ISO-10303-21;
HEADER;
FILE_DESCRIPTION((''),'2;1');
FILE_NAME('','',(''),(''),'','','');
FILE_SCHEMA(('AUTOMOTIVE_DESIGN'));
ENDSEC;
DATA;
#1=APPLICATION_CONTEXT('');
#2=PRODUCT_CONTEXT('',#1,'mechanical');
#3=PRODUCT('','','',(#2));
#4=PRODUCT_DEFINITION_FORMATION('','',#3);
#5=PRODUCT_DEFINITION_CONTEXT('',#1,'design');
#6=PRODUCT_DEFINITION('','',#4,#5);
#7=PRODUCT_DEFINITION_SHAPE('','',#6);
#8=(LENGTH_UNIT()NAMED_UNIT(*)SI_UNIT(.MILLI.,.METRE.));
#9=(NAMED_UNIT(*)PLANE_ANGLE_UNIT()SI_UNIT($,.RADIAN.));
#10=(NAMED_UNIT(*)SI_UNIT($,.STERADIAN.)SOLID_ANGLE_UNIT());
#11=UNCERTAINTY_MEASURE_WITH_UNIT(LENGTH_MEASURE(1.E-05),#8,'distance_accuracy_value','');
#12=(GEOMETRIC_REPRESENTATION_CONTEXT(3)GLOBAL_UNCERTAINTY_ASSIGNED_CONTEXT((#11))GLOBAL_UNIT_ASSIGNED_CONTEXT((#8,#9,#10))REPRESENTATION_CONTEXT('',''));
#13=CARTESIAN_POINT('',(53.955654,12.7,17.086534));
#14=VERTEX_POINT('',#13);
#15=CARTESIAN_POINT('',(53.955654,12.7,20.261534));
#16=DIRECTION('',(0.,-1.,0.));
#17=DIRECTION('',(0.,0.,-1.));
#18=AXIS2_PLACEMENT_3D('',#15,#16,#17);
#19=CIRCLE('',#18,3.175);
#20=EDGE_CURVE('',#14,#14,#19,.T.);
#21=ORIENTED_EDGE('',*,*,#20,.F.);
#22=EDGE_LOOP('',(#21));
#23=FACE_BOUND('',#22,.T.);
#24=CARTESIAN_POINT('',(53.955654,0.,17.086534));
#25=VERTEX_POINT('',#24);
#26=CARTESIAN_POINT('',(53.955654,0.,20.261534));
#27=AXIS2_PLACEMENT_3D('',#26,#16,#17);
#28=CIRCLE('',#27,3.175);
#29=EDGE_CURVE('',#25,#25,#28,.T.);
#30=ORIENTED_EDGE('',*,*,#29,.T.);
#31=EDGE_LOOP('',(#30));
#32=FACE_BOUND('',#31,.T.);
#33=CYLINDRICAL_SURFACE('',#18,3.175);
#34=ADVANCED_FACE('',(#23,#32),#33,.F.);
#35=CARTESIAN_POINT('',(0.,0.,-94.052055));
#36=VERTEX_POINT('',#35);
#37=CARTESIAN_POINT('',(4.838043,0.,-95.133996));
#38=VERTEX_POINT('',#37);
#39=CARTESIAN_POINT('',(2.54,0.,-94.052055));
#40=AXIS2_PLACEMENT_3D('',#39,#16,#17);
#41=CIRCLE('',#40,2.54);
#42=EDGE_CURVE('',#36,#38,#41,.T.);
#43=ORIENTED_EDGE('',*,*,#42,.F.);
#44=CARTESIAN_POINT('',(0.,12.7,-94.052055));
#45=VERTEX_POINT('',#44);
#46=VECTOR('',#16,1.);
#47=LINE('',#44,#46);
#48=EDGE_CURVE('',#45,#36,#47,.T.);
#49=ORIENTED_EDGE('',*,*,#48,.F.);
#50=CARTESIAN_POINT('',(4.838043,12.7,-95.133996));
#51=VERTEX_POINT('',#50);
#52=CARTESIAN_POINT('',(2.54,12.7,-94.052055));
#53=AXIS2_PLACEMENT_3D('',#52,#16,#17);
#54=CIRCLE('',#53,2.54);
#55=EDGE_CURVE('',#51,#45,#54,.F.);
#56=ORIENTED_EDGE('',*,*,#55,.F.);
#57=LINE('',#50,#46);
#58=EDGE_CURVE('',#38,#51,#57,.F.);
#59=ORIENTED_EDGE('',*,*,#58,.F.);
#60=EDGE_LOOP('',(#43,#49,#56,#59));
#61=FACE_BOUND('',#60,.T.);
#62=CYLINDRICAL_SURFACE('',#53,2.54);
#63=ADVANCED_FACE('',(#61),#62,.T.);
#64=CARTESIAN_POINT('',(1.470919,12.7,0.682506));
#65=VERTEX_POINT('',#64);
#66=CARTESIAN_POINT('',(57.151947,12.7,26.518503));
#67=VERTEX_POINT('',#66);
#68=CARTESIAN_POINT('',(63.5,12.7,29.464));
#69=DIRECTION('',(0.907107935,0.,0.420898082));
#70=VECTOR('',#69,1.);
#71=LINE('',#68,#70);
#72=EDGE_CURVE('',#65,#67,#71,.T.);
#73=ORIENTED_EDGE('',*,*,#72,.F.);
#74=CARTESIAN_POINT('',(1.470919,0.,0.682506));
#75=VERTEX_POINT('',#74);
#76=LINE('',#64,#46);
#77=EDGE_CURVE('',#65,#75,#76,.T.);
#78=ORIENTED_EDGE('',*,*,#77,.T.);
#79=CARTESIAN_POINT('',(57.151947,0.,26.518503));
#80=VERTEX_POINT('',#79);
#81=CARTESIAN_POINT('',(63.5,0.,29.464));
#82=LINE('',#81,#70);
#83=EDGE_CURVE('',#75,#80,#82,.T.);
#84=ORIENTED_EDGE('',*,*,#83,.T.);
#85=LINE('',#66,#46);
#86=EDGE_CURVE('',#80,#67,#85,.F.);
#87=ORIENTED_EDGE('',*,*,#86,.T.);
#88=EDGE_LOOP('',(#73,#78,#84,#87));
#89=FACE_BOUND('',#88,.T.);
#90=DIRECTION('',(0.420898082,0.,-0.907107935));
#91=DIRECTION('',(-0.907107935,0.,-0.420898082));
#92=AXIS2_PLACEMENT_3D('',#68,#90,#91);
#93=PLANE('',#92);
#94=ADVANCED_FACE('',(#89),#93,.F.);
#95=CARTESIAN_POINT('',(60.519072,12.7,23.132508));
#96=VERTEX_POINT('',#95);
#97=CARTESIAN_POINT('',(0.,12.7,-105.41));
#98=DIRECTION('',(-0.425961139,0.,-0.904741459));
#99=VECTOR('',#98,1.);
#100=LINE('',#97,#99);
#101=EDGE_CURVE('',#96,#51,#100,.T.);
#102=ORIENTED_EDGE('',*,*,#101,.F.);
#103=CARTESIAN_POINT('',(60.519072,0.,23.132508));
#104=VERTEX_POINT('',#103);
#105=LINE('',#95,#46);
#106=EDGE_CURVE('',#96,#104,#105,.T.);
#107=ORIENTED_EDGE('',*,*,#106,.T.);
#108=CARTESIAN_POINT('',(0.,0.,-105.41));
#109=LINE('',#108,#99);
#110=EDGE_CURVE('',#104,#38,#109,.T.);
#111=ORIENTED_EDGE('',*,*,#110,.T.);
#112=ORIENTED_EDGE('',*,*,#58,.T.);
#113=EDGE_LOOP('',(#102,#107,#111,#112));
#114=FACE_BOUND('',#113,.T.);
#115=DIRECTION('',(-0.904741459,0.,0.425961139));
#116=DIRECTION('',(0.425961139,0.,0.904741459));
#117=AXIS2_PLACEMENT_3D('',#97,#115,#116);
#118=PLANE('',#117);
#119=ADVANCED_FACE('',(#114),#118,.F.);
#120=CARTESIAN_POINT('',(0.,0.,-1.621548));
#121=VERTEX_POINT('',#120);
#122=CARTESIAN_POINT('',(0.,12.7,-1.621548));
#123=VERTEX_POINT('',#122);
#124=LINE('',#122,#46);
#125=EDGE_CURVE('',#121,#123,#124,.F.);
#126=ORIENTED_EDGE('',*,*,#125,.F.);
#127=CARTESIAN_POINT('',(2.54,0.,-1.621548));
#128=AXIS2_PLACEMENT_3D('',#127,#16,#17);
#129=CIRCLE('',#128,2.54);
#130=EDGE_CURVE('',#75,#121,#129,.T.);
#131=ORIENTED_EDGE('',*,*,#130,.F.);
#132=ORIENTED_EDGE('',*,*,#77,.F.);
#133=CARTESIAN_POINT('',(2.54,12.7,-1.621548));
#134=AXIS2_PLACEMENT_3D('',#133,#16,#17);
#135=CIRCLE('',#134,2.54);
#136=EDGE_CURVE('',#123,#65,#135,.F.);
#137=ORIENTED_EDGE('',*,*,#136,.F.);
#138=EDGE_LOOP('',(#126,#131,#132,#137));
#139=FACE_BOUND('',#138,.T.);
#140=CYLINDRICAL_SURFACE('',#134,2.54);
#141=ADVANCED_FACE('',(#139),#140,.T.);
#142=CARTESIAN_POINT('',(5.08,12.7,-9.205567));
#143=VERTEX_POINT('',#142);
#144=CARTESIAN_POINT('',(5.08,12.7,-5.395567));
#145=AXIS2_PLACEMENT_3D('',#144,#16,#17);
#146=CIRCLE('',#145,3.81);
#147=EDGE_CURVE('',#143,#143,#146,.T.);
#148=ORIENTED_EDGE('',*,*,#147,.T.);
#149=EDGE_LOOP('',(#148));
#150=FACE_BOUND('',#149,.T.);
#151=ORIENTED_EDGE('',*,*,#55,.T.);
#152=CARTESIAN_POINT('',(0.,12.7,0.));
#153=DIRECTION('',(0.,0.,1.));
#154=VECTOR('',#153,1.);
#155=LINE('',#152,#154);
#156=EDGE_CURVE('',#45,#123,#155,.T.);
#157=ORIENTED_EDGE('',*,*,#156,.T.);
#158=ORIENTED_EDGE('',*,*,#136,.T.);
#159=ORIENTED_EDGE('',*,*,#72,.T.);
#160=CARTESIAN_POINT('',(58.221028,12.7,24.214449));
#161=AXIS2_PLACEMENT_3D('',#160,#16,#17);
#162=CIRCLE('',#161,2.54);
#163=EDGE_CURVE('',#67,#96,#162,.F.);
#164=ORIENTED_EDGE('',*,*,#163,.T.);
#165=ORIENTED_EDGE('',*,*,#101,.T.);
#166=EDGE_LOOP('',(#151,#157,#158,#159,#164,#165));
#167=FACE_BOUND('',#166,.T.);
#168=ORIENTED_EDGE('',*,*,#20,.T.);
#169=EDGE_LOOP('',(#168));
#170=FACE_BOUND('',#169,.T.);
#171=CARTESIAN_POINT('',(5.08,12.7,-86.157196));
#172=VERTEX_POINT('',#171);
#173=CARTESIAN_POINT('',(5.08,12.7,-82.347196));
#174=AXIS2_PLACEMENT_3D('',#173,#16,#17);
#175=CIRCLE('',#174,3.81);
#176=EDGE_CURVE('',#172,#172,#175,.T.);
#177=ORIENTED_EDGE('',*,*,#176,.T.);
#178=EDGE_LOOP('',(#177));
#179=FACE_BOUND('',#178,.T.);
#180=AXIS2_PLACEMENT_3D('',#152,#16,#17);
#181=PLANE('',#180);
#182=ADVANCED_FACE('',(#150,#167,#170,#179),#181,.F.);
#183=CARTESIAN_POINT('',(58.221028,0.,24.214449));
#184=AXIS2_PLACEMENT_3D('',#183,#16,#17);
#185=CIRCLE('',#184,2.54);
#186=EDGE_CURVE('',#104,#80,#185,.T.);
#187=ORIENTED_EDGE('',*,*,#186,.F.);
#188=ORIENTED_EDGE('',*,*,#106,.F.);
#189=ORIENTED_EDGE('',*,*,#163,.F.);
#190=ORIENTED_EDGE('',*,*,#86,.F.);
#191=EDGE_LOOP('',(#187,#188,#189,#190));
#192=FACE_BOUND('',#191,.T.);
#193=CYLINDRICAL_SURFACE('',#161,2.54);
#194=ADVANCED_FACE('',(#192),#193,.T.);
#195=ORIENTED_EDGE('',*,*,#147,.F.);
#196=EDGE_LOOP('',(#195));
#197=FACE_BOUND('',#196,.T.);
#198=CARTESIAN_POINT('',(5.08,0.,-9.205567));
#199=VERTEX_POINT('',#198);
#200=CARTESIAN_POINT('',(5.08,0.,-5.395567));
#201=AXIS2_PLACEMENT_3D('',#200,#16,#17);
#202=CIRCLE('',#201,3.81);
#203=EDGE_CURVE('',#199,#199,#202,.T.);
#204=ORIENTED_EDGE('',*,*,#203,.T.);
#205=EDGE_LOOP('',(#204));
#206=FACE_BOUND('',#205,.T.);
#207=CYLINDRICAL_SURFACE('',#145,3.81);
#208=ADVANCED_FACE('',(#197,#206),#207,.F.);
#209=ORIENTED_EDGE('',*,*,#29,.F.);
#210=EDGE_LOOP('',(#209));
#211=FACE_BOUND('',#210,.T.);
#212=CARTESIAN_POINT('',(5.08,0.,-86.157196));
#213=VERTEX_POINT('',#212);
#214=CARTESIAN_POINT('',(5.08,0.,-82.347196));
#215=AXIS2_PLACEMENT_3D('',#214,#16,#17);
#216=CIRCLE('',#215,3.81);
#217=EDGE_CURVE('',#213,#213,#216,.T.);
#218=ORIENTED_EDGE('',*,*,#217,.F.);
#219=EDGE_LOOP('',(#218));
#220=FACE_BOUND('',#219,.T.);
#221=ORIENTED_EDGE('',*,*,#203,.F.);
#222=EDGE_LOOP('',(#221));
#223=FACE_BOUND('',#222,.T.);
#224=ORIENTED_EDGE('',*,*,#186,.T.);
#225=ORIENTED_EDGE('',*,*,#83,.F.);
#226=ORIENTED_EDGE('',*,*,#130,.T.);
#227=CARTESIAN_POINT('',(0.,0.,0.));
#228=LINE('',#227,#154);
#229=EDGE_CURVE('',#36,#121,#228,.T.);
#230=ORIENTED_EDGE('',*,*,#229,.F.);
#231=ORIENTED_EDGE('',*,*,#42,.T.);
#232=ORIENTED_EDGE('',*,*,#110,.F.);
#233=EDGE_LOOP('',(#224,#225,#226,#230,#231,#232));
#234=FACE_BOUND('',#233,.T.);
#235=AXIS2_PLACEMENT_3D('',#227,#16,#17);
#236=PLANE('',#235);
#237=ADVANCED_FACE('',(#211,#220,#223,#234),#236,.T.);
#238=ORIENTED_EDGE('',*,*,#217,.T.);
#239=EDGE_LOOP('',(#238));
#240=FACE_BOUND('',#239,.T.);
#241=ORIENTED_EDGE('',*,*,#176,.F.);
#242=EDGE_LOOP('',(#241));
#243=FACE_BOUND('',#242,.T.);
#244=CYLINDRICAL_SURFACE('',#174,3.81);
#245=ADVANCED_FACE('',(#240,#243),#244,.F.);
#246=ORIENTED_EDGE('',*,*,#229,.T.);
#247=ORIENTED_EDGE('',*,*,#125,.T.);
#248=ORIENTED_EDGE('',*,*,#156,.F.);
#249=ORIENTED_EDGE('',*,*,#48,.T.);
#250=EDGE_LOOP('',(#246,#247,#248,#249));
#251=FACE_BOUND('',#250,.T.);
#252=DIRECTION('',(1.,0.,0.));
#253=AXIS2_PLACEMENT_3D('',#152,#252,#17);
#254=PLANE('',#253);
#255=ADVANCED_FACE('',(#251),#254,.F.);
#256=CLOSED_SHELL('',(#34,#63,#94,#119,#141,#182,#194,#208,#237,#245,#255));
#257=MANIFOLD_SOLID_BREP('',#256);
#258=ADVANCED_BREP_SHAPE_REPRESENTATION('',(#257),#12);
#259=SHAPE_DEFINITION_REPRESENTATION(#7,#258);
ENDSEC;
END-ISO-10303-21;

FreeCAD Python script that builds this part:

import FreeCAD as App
import Part
import Sketcher

V = App.Vector
Q = App.Units.Quantity


def edges_at(feature, points):
    """Names of the edges that pass closest to the given points."""
    edges = feature.Shape.Edges
    near = lambda p: min(range(len(edges)), key=lambda i: edges[i].distToShape(Part.Vertex(*p))[0])
    return sorted({f"Edge{near(p) + 1}" for p in points})


def add_polygon(sketch, points):
    """Adds a closed chain of lines whose ends are joined by coincident constraints."""
    first, n = sketch.GeometryCount, len(points)
    for a, b in zip(points, points[1:] + points[:1]):
        sketch.addGeometry(Part.LineSegment(App.Vector(*a, 0), App.Vector(*b, 0)), False)
    for i in range(n):
        sketch.addConstraint(Sketcher.Constraint("Coincident", first + i, 2, first + (i + 1) % n, 1))

doc = App.newDocument("Part")
body = doc.addObject("PartDesign::Body", "Body")

sketch1 = body.newObject("Sketcher::SketchObject", "Sketch")
sketch1.AttachmentSupport = (doc.getObject("XZ_Plane"), [""])
sketch1.MapMode = "FlatFace"
add_polygon(sketch1, [(0, -105), (0, 0), (64, 29)])
sketch1.addConstraint([
    Sketcher.Constraint("Vertical", 0),
    Sketcher.Constraint("Coincident", 0, 2, -1, 1),
    Sketcher.Constraint("DistanceY", 0, 1, 0, 2, Q("4.15 in")),
    Sketcher.Constraint("DistanceX", -1, 1, 1, 2, Q("2.5 in")),
    Sketcher.Constraint("DistanceY", -1, 1, 1, 2, Q("1.16 in")),
])
pad1 = body.newObject("PartDesign::Pad", "Pad")
pad1.Profile = sketch1
pad1.Length = Q("0.5 in")
pad1.Reversed = True

sketch2 = body.newObject("Sketcher::SketchObject", "Sketch001")
sketch2.AttachmentSupport = (doc.getObject("XZ_Plane"), [""])
sketch2.MapMode = "FlatFace"
sketch2.addGeometry([
    Part.Circle(V(5.1, -82.3, 0), V(0, 0, 1), 3.8),
    Part.Circle(V(5.1, -5.4, 0), V(0, 0, 1), 3.8),
    Part.Circle(V(54, 20.3, 0), V(0, 0, 1), 3.2),
], False)
sketch2.addConstraint([
    Sketcher.Constraint("Equal", 0, 1),
    Sketcher.Constraint("Vertical", 0, 3, 1, 3),
    Sketcher.Constraint("Diameter", 0, Q("0.3 in")),
    Sketcher.Constraint("Diameter", 2, Q("0.25 in")),
    Sketcher.Constraint("DistanceX", -1, 1, 0, 3, Q("0.2 in")),
    Sketcher.Constraint("DistanceY", 1, 3, 2, 3, 25.657101),
    Sketcher.Constraint("DistanceY", 0, 3, 1, 3, 76.95163),
    Sketcher.Constraint("DistanceY", 0, 3, -1, 1, 82.347196),
    Sketcher.Constraint("DistanceX", -1, 1, 2, 3, 53.955654),
])
pocket1 = body.newObject("PartDesign::Pocket", "Pocket")
pocket1.Profile = sketch2
pocket1.Type = "ThroughAll"
doc.recompute()

fillet = body.newObject("PartDesign::Fillet", "Fillet")
fillet.Base = (pocket1, edges_at(pocket1, [(0, 6.35, 0), (0, 6.35, -105.41), (63.5, 6.35, 29.464)]))
fillet.Radius = Q("0.1 in")

doc.recompute()
